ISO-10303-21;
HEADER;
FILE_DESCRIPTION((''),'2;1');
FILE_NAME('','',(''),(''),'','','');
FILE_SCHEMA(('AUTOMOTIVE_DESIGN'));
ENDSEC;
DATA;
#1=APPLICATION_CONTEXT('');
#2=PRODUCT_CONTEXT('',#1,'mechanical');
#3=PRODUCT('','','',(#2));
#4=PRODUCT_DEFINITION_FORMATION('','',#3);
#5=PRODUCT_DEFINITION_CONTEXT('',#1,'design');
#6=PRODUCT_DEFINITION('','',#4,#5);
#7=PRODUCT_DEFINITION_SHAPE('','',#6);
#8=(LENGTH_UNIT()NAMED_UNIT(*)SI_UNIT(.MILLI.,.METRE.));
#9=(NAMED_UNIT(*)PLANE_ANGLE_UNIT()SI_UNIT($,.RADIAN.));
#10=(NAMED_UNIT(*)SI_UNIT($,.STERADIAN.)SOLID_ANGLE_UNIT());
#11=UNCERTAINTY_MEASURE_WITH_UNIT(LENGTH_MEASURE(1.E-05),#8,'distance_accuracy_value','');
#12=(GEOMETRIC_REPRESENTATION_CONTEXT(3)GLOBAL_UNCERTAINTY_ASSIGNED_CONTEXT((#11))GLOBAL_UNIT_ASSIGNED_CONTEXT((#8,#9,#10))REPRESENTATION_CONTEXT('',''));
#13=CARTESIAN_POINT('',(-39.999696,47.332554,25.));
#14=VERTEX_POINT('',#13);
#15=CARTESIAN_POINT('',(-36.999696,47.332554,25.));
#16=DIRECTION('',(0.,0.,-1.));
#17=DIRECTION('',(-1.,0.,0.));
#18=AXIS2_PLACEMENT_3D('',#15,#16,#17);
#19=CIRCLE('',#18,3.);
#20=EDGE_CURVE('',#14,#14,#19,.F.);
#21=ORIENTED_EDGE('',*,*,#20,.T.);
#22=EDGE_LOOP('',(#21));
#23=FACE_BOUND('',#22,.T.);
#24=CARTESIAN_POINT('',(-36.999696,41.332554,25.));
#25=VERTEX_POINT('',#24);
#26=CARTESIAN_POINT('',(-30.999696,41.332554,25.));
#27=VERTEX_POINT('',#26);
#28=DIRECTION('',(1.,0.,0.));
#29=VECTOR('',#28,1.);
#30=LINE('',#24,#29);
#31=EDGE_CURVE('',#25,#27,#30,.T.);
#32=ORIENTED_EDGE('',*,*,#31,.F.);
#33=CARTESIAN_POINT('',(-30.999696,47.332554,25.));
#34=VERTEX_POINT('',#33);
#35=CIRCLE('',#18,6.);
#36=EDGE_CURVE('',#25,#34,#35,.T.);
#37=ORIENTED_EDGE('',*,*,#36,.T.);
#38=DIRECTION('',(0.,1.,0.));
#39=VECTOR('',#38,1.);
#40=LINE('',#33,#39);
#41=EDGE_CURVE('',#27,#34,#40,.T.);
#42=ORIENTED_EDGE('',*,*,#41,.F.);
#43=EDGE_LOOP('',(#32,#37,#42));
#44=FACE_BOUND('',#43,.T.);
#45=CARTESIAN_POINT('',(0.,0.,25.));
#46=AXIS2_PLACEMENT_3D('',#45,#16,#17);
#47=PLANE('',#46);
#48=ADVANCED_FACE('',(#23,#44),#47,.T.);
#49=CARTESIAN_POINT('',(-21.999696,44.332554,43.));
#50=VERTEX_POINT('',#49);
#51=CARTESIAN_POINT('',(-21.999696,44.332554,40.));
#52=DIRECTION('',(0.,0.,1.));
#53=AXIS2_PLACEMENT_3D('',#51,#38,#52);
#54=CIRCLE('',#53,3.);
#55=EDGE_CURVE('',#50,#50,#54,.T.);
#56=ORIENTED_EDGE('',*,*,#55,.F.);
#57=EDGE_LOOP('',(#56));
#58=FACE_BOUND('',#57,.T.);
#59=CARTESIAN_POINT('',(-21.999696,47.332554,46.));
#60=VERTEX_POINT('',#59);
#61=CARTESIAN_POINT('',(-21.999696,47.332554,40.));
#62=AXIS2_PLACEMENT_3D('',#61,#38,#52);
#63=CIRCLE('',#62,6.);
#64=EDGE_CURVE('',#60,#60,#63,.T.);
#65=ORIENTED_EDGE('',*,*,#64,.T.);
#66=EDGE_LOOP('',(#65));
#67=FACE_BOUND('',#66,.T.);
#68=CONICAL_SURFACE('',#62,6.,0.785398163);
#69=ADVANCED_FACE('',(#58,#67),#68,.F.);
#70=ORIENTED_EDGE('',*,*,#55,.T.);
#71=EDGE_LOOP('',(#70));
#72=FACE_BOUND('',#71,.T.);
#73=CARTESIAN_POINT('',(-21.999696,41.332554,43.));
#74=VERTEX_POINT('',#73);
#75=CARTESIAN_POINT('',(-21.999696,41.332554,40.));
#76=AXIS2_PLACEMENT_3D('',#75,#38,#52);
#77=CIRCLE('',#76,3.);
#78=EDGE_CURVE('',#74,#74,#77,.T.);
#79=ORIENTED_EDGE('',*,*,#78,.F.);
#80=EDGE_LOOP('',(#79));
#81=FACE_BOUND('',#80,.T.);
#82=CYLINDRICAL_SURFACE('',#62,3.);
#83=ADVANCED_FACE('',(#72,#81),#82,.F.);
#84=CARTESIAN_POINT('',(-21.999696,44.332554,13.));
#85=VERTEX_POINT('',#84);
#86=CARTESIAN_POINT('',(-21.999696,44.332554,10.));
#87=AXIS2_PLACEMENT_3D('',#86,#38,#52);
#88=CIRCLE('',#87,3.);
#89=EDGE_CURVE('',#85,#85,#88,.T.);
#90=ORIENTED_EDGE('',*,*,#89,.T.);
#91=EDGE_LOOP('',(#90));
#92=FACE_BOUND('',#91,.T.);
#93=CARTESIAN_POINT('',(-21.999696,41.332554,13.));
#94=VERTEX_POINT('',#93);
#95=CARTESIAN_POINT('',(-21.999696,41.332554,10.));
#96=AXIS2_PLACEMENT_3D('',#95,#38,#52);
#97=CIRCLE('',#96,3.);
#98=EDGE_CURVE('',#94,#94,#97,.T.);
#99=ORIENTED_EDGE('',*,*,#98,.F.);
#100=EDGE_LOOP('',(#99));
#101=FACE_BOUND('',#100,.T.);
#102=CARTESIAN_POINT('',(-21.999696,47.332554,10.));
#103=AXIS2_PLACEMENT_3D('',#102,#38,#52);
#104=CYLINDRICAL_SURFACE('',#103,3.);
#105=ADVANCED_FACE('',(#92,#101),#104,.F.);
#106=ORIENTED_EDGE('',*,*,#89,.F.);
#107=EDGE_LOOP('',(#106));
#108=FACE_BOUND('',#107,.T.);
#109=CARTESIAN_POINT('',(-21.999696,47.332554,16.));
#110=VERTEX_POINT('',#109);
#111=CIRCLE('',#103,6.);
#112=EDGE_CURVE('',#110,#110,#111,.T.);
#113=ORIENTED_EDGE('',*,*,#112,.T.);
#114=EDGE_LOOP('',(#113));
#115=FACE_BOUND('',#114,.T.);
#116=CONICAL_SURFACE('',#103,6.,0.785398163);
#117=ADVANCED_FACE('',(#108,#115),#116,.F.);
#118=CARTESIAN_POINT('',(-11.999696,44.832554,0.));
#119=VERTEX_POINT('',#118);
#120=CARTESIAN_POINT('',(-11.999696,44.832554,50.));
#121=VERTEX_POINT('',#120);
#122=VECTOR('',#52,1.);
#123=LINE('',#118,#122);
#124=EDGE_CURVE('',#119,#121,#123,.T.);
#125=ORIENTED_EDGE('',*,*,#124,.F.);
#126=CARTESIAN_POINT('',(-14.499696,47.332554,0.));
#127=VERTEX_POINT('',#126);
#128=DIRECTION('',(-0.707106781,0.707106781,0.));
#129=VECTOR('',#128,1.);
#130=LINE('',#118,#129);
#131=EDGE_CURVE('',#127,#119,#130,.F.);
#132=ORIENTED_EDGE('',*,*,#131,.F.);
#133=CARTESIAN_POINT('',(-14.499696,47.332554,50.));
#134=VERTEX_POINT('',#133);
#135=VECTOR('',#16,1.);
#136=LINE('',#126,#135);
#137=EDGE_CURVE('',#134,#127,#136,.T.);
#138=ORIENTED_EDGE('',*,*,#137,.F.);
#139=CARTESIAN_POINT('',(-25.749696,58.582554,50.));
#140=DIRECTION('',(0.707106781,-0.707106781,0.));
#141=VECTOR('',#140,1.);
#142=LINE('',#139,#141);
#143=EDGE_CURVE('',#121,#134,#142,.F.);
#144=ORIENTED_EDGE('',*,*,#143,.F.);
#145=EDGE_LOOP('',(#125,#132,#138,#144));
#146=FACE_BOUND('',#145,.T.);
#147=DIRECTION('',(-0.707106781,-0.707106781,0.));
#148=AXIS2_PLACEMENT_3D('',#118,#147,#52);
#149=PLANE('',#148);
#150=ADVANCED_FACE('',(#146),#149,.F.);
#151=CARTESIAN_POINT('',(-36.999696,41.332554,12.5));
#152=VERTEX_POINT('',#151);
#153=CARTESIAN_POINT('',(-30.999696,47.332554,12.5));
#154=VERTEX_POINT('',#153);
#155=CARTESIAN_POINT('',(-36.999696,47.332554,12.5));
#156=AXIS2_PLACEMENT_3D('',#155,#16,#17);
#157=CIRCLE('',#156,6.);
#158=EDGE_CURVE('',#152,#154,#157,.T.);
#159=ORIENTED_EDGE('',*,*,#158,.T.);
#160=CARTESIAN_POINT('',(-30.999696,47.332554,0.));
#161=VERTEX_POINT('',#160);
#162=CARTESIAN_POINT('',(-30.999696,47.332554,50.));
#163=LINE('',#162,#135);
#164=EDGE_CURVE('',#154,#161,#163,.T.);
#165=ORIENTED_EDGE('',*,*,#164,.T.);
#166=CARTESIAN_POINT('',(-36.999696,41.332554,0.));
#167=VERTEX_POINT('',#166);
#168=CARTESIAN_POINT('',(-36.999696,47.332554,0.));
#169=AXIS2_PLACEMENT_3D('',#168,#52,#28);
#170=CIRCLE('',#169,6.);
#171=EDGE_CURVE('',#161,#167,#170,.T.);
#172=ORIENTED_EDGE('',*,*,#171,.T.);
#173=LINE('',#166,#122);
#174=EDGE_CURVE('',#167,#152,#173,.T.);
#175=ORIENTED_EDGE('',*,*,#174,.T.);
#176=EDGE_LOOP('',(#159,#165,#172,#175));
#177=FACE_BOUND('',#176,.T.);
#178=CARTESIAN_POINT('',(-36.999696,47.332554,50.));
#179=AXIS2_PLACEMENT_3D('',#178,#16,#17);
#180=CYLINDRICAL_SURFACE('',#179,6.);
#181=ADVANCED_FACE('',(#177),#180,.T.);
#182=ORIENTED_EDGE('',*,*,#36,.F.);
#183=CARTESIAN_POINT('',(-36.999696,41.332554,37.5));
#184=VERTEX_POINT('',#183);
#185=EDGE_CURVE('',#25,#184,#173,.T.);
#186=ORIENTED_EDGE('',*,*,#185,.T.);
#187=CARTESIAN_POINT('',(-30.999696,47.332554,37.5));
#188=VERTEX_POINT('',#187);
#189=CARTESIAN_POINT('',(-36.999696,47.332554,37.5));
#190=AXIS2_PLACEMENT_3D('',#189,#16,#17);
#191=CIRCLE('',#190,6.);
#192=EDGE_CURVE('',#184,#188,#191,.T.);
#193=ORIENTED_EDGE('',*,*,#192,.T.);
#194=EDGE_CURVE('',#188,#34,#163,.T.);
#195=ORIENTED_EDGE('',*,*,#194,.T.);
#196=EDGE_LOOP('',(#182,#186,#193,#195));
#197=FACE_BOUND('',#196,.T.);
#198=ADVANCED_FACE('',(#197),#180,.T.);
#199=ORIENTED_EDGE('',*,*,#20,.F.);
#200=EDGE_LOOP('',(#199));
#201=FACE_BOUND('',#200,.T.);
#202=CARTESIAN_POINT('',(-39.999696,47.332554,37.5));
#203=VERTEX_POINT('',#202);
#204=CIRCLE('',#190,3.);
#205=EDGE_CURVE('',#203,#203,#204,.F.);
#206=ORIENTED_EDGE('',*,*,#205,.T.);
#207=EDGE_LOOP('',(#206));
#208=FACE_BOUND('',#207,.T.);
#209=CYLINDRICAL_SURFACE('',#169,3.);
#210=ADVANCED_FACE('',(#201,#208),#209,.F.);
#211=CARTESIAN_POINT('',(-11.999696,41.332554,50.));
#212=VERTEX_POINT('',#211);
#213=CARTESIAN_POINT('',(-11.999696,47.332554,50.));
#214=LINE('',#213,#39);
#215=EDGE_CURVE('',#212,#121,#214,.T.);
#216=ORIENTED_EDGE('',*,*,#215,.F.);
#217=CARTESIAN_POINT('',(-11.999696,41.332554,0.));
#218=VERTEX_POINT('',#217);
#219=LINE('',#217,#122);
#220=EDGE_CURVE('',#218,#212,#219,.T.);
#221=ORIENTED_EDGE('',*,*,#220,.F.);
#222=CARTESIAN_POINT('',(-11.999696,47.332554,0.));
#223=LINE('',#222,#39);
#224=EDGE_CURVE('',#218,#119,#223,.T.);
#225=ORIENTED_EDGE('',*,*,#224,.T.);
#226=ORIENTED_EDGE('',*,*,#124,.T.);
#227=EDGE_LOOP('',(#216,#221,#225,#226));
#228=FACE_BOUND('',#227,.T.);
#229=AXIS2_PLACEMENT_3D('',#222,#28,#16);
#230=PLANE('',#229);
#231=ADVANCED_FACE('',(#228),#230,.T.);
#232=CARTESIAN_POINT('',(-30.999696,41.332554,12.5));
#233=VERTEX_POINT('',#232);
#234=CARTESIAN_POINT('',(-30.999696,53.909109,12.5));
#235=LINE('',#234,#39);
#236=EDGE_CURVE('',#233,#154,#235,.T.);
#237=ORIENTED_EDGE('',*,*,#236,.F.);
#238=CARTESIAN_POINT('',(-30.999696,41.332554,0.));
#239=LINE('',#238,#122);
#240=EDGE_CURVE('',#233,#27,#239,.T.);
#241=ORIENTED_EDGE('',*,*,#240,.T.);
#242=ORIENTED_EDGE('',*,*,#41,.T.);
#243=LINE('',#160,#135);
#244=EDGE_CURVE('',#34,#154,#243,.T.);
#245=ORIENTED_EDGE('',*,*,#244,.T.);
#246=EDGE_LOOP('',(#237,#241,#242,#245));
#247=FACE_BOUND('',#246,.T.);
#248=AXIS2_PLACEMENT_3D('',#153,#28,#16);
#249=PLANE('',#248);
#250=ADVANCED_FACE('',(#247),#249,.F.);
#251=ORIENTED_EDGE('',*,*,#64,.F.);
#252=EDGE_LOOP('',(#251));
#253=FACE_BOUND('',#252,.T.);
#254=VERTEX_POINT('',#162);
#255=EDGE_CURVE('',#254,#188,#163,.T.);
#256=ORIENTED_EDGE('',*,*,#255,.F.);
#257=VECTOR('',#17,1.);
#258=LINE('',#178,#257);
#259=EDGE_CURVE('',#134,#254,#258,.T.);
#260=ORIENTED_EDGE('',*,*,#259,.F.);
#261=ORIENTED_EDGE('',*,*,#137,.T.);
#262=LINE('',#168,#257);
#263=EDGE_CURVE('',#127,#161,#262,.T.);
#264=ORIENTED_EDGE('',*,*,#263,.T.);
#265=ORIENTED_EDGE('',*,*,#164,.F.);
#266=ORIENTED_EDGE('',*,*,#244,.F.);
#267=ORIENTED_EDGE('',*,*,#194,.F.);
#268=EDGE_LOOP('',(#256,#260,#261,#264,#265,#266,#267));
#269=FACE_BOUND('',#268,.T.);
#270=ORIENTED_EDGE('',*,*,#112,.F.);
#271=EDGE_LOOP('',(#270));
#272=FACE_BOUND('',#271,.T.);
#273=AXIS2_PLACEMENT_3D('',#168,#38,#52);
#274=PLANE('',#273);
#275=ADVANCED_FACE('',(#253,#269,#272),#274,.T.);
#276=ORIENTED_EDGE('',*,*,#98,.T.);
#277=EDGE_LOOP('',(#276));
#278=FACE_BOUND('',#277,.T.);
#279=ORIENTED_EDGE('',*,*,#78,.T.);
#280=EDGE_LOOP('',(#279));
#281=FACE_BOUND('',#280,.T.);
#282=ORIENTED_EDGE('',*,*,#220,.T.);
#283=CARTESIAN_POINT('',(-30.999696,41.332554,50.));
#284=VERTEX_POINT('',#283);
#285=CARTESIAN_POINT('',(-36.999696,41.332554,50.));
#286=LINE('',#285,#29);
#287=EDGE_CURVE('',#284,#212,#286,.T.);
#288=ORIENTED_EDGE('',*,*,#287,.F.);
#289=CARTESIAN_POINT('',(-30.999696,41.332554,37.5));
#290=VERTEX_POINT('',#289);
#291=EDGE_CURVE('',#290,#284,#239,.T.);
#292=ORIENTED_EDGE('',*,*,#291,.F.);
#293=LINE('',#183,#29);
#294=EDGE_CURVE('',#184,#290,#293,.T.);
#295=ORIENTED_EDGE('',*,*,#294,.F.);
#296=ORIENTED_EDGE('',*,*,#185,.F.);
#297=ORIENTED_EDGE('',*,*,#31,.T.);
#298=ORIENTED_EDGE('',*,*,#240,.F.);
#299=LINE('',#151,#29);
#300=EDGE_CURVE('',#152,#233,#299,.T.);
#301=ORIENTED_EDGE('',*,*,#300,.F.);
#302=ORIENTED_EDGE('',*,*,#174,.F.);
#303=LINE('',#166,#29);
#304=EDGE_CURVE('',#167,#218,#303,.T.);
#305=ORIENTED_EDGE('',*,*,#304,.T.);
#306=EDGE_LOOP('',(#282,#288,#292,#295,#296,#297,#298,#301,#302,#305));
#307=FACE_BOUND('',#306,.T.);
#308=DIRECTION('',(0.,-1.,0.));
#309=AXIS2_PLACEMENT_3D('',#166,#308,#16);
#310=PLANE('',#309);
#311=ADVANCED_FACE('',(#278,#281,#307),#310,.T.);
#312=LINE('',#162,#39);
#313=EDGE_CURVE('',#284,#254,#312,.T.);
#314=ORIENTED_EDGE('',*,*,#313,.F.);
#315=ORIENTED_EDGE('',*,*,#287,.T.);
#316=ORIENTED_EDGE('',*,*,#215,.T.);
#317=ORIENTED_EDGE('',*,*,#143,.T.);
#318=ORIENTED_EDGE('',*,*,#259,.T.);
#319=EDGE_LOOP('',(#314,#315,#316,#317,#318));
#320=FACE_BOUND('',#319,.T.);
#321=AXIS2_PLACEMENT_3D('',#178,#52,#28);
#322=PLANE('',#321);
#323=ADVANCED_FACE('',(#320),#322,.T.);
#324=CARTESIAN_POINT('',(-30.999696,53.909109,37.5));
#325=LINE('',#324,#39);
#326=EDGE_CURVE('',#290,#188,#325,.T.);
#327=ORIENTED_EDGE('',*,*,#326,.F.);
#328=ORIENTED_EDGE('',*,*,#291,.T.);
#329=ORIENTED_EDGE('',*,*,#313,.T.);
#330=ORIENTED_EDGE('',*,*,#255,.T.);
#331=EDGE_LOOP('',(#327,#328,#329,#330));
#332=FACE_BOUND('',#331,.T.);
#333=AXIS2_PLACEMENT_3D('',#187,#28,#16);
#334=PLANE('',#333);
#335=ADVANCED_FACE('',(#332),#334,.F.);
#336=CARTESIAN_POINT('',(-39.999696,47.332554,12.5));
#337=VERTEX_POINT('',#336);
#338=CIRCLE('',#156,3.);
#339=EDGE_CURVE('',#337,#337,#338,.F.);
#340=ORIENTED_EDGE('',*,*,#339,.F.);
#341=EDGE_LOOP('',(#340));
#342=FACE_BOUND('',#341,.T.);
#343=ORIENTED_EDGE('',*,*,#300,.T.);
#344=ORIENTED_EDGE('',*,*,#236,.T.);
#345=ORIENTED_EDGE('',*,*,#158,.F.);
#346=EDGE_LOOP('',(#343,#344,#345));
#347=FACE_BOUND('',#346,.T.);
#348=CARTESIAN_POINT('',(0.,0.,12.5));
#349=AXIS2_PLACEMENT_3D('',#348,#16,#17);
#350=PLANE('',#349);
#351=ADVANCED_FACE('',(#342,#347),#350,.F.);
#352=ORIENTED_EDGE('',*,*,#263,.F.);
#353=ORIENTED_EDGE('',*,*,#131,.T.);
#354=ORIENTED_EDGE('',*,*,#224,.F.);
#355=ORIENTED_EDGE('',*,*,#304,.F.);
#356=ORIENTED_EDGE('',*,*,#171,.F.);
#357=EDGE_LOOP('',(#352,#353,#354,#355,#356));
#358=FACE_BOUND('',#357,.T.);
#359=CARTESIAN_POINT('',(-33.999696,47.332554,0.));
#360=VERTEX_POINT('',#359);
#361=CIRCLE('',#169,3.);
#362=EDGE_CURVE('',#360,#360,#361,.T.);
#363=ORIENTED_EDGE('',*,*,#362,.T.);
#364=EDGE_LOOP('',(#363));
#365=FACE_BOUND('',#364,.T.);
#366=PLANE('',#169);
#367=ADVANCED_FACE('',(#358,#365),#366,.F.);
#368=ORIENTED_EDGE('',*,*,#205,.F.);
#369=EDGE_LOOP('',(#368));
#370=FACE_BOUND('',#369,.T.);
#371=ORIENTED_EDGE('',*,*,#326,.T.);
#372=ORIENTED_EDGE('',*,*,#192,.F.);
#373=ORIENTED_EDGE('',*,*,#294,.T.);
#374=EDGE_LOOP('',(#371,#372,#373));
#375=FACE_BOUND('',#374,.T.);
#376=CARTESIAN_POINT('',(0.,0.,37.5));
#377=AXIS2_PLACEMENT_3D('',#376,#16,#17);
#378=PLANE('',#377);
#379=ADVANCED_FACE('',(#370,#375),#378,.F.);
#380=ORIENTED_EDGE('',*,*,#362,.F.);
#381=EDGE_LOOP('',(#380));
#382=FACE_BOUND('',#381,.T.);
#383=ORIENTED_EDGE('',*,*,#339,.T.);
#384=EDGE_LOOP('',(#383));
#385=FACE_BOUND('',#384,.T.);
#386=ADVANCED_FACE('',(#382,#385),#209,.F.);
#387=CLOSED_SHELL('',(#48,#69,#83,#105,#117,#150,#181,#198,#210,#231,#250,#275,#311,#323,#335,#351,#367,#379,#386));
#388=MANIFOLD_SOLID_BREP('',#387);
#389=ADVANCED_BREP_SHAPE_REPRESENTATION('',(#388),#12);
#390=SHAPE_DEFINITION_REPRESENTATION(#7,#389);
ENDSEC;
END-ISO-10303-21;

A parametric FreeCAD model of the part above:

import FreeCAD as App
import Part
import Sketcher
from FreeCAD import Vector
Q = App.Units.Quantity


def edges_at(feature, points):
    """Names of the edges that pass closest to the given points."""
    edges = feature.Shape.Edges
    near = lambda p: min(range(len(edges)), key=lambda i: edges[i].distToShape(Part.Vertex(*p))[0])
    return sorted({f"Edge{near(p) + 1}" for p in points})


def add_polygon(sketch, points):
    """Adds a closed chain of lines whose ends are joined by coincident constraints."""
    first, n = sketch.GeometryCount, len(points)
    for a, b in zip(points, points[1:] + points[:1]):
        sketch.addGeometry(Part.LineSegment(App.Vector(*a, 0), App.Vector(*b, 0)), False)
    for i in range(n):
        sketch.addConstraint(Sketcher.Constraint("Coincident", first + i, 2, first + (i + 1) % n, 1))

doc = App.newDocument("Part")
body = doc.addObject("PartDesign::Body", "Body")

# Sketch on XY plane
sketch1 = body.newObject("Sketcher::SketchObject", "Sketch")
sketch1.AttachmentSupport = (doc.getObject("XY_Plane"), [""])
sketch1.MapMode = "FlatFace"
sketch1.addGeometry(Part.Circle(Vector(-36.999696, 47.332554, 0), Vector(0, 0, 1), 6), False)
sketch1.addConstraint([
    Sketcher.Constraint("Diameter", 0, Q("12 mm")),
    Sketcher.Constraint("DistanceX", 0, 3, -1, 1, Q("36.999696 mm")),
    Sketcher.Constraint("DistanceY", -1, 1, 0, 3, Q("47.332554 mm")),
])
pad1 = body.newObject("PartDesign::Pad", "Pad")
pad1.Profile = sketch1
pad1.Length = 50

# Sketch on XY plane
sketch2 = body.newObject("Sketcher::SketchObject", "Sketch001")
sketch2.AttachmentSupport = (doc.getObject("XY_Plane"), [""])
sketch2.MapMode = "FlatFace"
sketch2.AttachmentOffset = App.Placement(Vector(0, 0, 50), App.Rotation())
add_polygon(sketch2, [(-36.999696, 47.332554), (-36.999696, 41.332554), (-11.999696, 41.332554), (-11.999696, 47.332554)])  # lines 0-3
sketch2.addConstraint([
    Sketcher.Constraint("Vertical", 0),
    Sketcher.Constraint("Horizontal", 1),
    Sketcher.Constraint("Vertical", 2),
    Sketcher.Constraint("Horizontal", 3),
    Sketcher.Constraint("DistanceX", 1, 1, 1, 2, Q("25 mm")),
    Sketcher.Constraint("DistanceY", 0, 2, 0, 1, Q("6 mm")),
    Sketcher.Constraint("DistanceX", 0, 2, -1, 1, Q("36.999696 mm")),
    Sketcher.Constraint("DistanceY", -1, 1, 0, 2, Q("41.332554 mm")),
])
pad2 = body.newObject("PartDesign::Pad", "Pad001")
pad2.Profile = sketch2
pad2.Length = 50
pad2.Reversed = True

# Sketch on XY plane
sketch3 = body.newObject("Sketcher::SketchObject", "Sketch002")
sketch3.AttachmentSupport = (doc.getObject("XY_Plane"), [""])
sketch3.MapMode = "FlatFace"
sketch3.AttachmentOffset = App.Placement(Vector(0, 0, 50), App.Rotation())
sketch3.addGeometry(Part.Circle(Vector(-36.999696, 47.332554, 0), Vector(0, 0, 1), 3), False)
sketch3.addConstraint([
    Sketcher.Constraint("Diameter", 0, Q("6 mm")),
    Sketcher.Constraint("DistanceX", 0, 3, -1, 1, Q("36.999696 mm")),
    Sketcher.Constraint("DistanceY", -1, 1, 0, 3, Q("47.332554 mm")),
])
pocket1 = body.newObject("PartDesign::Pocket", "Pocket")
pocket1.Profile = sketch3
pocket1.Length = 50

# Sketch on XZ plane
sketch4 = body.newObject("Sketcher::SketchObject", "Sketch003")
sketch4.AttachmentSupport = (doc.getObject("XZ_Plane"), [""])
sketch4.MapMode = "FlatFace"
sketch4.AttachmentOffset = App.Placement(Vector(0, 0, -47.332554), App.Rotation())
sketch4.addGeometry([
    Part.Circle(Vector(-21.999696, 40, 0), Vector(0, 0, 1), 3),
    Part.Circle(Vector(-21.999696, 10, 0), Vector(0, 0, 1), 3),
], False)
sketch4.addConstraint([
    Sketcher.Constraint("Equal", 0, 1),
    Sketcher.Constraint("Vertical", 0, 3, 1, 3),
    Sketcher.Constraint("Diameter", 0, Q("6 mm")),
    Sketcher.Constraint("DistanceY", -1, 1, 0, 3, Q("40 mm")),
    Sketcher.Constraint("DistanceY", -1, 1, 1, 3, Q("10 mm")),
    Sketcher.Constraint("DistanceX", 0, 3, -1, 1, Q("21.999696 mm")),
])
doc.recompute()
hole = body.newObject("PartDesign::Hole", "Hole")
hole.Profile = sketch4
hole.ThreadType = "None"
hole.Diameter = 6
hole.DepthType = "ThroughAll"
hole.HoleCutType = "Countersink"
hole.HoleCutDiameter = 12
hole.HoleCutCountersinkAngle = 90
hole.Reversed = True

# Sketch on XY plane
sketch5 = body.newObject("Sketcher::SketchObject", "Sketch004")
sketch5.AttachmentSupport = (doc.getObject("XY_Plane"), [""])
sketch5.MapMode = "FlatFace"
sketch5.AttachmentOffset = App.Placement(Vector(0, 0, 50), App.Rotation())
add_polygon(sketch5, [(-30.999696, 35.818106), (-30.999696, 53.909109), (-46.000109, 53.909109), (-46.000109, 35.818106)])  # lines 0-3
sketch5.addConstraint([
    Sketcher.Constraint("Vertical", 0),
    Sketcher.Constraint("Horizontal", 1),
    Sketcher.Constraint("Vertical", 2),
    Sketcher.Constraint("Horizontal", 3),
    Sketcher.Constraint("DistanceX", 1, 2, 1, 1, Q("15.000413 mm")),
    Sketcher.Constraint("DistanceY", 0, 1, 0, 2, Q("18.091003 mm")),
    Sketcher.Constraint("DistanceY", -1, 1, 0, 2, Q("53.909109 mm")),
    Sketcher.Constraint("DistanceX", 1, 2, -1, 1, Q("46.000109 mm")),
])
pocket2 = body.newObject("PartDesign::Pocket", "Pocket001")
pocket2.Profile = sketch5
pocket2.Length = 12.5
doc.recompute()

linearpattern = body.newObject("PartDesign::LinearPattern", "LinearPattern")
linearpattern.Originals = [pocket2]
linearpattern.Direction = (doc.getObject("Z_Axis"), [""])
linearpattern.Mode = "offset"
linearpattern.Offset = 25
linearpattern.Occurrences = 2
linearpattern.Reversed = True
body.Tip = linearpattern
doc.recompute()

chamfer = body.newObject("PartDesign::Chamfer", "Chamfer")
chamfer.Base = (linearpattern, edges_at(linearpattern, [(-12, 47.333, 25)]))
chamfer.Size = 2.5

doc.recompute()
